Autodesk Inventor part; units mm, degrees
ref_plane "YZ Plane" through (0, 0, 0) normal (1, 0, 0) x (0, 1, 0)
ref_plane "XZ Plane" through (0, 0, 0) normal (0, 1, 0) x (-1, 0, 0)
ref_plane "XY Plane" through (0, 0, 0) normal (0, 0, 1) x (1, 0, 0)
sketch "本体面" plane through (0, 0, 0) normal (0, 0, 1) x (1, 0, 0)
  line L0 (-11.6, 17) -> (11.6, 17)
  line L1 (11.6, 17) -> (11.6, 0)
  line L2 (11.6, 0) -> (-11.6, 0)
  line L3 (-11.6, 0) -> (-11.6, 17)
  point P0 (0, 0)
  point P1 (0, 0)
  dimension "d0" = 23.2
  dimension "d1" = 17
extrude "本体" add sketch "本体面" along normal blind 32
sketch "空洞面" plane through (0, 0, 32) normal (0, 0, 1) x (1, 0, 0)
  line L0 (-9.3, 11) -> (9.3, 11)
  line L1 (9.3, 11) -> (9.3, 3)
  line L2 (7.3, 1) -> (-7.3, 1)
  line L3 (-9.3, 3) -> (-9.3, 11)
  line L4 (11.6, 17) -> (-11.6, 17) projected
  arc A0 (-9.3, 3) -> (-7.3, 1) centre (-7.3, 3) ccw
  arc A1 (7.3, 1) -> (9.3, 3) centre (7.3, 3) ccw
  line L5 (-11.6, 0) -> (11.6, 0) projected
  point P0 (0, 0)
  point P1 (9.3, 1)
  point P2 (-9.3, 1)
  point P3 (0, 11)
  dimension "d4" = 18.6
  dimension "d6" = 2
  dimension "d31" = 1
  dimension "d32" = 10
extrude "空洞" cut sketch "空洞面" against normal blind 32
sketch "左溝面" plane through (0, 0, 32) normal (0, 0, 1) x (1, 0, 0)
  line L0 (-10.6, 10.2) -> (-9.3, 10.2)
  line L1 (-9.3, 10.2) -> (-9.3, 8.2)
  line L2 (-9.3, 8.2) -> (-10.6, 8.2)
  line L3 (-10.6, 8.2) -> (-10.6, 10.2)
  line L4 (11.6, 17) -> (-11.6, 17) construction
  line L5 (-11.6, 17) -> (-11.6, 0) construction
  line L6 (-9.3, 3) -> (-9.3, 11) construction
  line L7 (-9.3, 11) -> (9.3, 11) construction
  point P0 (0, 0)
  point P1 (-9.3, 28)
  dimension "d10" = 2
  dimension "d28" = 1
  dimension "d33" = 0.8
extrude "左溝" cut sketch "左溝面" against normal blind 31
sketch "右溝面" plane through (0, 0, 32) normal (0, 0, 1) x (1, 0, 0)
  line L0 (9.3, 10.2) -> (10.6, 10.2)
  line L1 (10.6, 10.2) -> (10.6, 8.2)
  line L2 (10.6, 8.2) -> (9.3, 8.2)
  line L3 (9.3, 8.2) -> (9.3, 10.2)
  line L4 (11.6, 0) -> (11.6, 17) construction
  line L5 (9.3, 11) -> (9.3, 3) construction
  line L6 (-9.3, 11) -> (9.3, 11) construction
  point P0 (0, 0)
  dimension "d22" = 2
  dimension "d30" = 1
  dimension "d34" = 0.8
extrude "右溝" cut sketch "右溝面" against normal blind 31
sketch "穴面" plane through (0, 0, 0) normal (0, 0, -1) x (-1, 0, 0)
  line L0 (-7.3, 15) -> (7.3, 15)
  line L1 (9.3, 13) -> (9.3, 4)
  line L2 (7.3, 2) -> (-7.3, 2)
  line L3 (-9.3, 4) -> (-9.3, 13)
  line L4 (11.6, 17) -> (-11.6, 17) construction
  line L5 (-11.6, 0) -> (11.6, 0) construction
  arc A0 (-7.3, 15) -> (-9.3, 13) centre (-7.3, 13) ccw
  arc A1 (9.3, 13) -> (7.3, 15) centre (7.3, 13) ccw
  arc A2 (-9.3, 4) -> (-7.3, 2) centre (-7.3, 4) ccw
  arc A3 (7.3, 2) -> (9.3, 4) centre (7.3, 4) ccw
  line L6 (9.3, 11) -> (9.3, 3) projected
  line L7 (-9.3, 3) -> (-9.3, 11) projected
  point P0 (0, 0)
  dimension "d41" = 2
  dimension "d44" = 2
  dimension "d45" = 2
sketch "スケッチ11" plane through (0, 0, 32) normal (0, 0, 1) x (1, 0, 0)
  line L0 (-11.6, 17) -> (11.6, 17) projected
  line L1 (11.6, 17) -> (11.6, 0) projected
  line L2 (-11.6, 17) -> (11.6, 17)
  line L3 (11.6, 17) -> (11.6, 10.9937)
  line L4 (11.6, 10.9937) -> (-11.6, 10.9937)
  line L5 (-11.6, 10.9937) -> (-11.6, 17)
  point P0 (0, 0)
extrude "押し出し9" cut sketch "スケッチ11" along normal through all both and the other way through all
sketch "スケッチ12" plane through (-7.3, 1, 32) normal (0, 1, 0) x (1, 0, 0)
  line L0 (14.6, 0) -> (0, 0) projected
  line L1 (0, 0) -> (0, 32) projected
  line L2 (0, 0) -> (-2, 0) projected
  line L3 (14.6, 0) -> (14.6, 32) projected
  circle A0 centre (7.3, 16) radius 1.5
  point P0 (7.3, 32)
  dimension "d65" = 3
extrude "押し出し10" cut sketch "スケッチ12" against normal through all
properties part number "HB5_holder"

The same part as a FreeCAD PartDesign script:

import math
import FreeCAD as App
import Part
import Sketcher

V = App.Vector
Q = App.Units.Quantity

doc = App.newDocument("Part")
body = doc.addObject("PartDesign::Body", "Body")

sketch1 = doc.addObject("Sketcher::SketchObject", "Sketch")
body.addObject(sketch1)
sketch1.AttachmentSupport = (doc.XY_Plane, [""])
sketch1.MapMode = "FlatFace"
sketch1.addGeometry([
    Part.LineSegment(V(11.6, 17, 0), V(-11.6, 17, 0)),
    Part.LineSegment(V(-11.6, 17, 0), V(-11.6, 0, 0)),
    Part.LineSegment(V(-11.6, 0, 0), V(11.6, 0, 0)),
    Part.LineSegment(V(11.6, 0, 0), V(11.6, 17, 0)),
], False)
sketch1.addConstraint([
    Sketcher.Constraint("Coincident", 0, 2, 1, 1),
    Sketcher.Constraint("Coincident", 1, 2, 2, 1),
    Sketcher.Constraint("Coincident", 2, 2, 3, 1),
    Sketcher.Constraint("Coincident", 3, 2, 0, 1),
    Sketcher.Constraint("Horizontal", 0),
    Sketcher.Constraint("Vertical", 1),
    Sketcher.Constraint("Horizontal", 2),
    Sketcher.Constraint("Vertical", 3),
    Sketcher.Constraint("Symmetric", 1, 2, 2, 2, -1, 1),
    Sketcher.Constraint("DistanceY", 1, 2, 1, 1, Q("17 mm")),
    Sketcher.Constraint("DistanceX", 0, 2, 0, 1, Q("23.2 mm")),
])
pad1 = doc.addObject("PartDesign::Pad", "Pad")
body.addObject(pad1)
pad1.Profile = sketch1
pad1.Length = 32

sketch2 = doc.addObject("Sketcher::SketchObject", "Sketch001")
body.addObject(sketch2)
sketch2.AttachmentSupport = (doc.XY_Plane, [""])
sketch2.MapMode = "FlatFace"
sketch2.AttachmentOffset = App.Placement(V(0, 0, 32), App.Rotation())
sketch2.addGeometry([
    Part.LineSegment(V(9.3, 11, 0), V(-9.3, 11, 0)),
    Part.LineSegment(V(-9.3, 11, 0), V(-9.3, 3, 0)),
    Part.ArcOfCircle(Part.Circle(V(-7.3, 3, 0), V(0, 0, 1), 2), math.radians(180), math.radians(270)),
    Part.LineSegment(V(-7.3, 1, 0), V(7.3, 1, 0)),
    Part.ArcOfCircle(Part.Circle(V(7.3, 3, 0), V(0, 0, 1), 2), math.radians(-90), math.radians(0)),
    Part.LineSegment(V(9.3, 3, 0), V(9.3, 11, 0)),
], False)
sketch2.addConstraint([
    Sketcher.Constraint("Coincident", 0, 2, 1, 1),
    Sketcher.Constraint("Tangent", 1, 2, 2, 1),
    Sketcher.Constraint("Tangent", 2, 2, 3, 1),
    Sketcher.Constraint("Tangent", 3, 2, 4, 1),
    Sketcher.Constraint("Tangent", 4, 2, 5, 1),
    Sketcher.Constraint("Coincident", 5, 2, 0, 1),
    Sketcher.Constraint("Horizontal", 0),
    Sketcher.Constraint("Vertical", 1),
    Sketcher.Constraint("Horizontal", 3),
    Sketcher.Constraint("Vertical", 5),
    Sketcher.Constraint("Equal", 2, 4),
    Sketcher.Constraint("Radius", 2, Q("2 mm")),
    Sketcher.Constraint("DistanceX", 0, 2, 0, 1, Q("18.6 mm")),
    Sketcher.Constraint("DistanceY", -1, 1, 2, 2, Q("1 mm")),
    Sketcher.Constraint("DistanceY", 2, 2, 0, 2, Q("10 mm")),
    Sketcher.Constraint("DistanceX", 2, 3, -1, 1, Q("7.3 mm")),
])
pocket1 = doc.addObject("PartDesign::Pocket", "Pocket")
body.addObject(pocket1)
pocket1.Profile = sketch2
pocket1.Length = 32

sketch3 = doc.addObject("Sketcher::SketchObject", "Sketch002")
body.addObject(sketch3)
sketch3.AttachmentSupport = (doc.XY_Plane, [""])
sketch3.MapMode = "FlatFace"
sketch3.AttachmentOffset = App.Placement(V(0, 0, 32), App.Rotation())
sketch3.addGeometry([
    Part.LineSegment(V(-9.3, 10.2, 0), V(-10.6, 10.2, 0)),
    Part.LineSegment(V(-10.6, 10.2, 0), V(-10.6, 8.2, 0)),
    Part.LineSegment(V(-10.6, 8.2, 0), V(-9.3, 8.2, 0)),
    Part.LineSegment(V(-9.3, 8.2, 0), V(-9.3, 10.2, 0)),
], False)
sketch3.addConstraint([
    Sketcher.Constraint("Coincident", 0, 2, 1, 1),
    Sketcher.Constraint("Coincident", 1, 2, 2, 1),
    Sketcher.Constraint("Coincident", 2, 2, 3, 1),
    Sketcher.Constraint("Coincident", 3, 2, 0, 1),
    Sketcher.Constraint("Horizontal", 0),
    Sketcher.Constraint("Vertical", 1),
    Sketcher.Constraint("Horizontal", 2),
    Sketcher.Constraint("Vertical", 3),
    Sketcher.Constraint("DistanceY", 1, 2, 1, 1, Q("2 mm")),
    Sketcher.Constraint("DistanceX", 0, 2, 0, 1, Q("1.3 mm")),
    Sketcher.Constraint("DistanceX", 0, 2, -1, 1, Q("10.6 mm")),
    Sketcher.Constraint("DistanceY", -1, 1, 0, 2, Q("10.2 mm")),
])
pocket2 = doc.addObject("PartDesign::Pocket", "Pocket001")
body.addObject(pocket2)
pocket2.Profile = sketch3
pocket2.Length = 31

sketch4 = doc.addObject("Sketcher::SketchObject", "Sketch003")
body.addObject(sketch4)
sketch4.AttachmentSupport = (doc.XY_Plane, [""])
sketch4.MapMode = "FlatFace"
sketch4.AttachmentOffset = App.Placement(V(0, 0, 32), App.Rotation())
sketch4.addGeometry([
    Part.LineSegment(V(10.6, 10.2, 0), V(9.3, 10.2, 0)),
    Part.LineSegment(V(9.3, 10.2, 0), V(9.3, 8.2, 0)),
    Part.LineSegment(V(9.3, 8.2, 0), V(10.6, 8.2, 0)),
    Part.LineSegment(V(10.6, 8.2, 0), V(10.6, 10.2, 0)),
], False)
sketch4.addConstraint([
    Sketcher.Constraint("Coincident", 0, 2, 1, 1),
    Sketcher.Constraint("Coincident", 1, 2, 2, 1),
    Sketcher.Constraint("Coincident", 2, 2, 3, 1),
    Sketcher.Constraint("Coincident", 3, 2, 0, 1),
    Sketcher.Constraint("Horizontal", 0),
    Sketcher.Constraint("Vertical", 1),
    Sketcher.Constraint("Horizontal", 2),
    Sketcher.Constraint("Vertical", 3),
    Sketcher.Constraint("DistanceY", 1, 2, 1, 1, Q("2 mm")),
    Sketcher.Constraint("DistanceX", 0, 2, 0, 1, Q("1.3 mm")),
    Sketcher.Constraint("DistanceX", -1, 1, 0, 2, Q("9.3 mm")),
    Sketcher.Constraint("DistanceY", -1, 1, 0, 2, Q("10.2 mm")),
])
pocket3 = doc.addObject("PartDesign::Pocket", "Pocket002")
body.addObject(pocket3)
pocket3.Profile = sketch4
pocket3.Length = 31

sketch5 = doc.addObject("Sketcher::SketchObject", "Sketch004")
body.addObject(sketch5)
sketch5.AttachmentSupport = (doc.XY_Plane, [""])
sketch5.MapMode = "FlatFace"
sketch5.AttachmentOffset = App.Placement(V(0, 0, 32), App.Rotation())
sketch5.addGeometry([
    Part.LineSegment(V(11.6, 17, 0), V(-11.6, 17, 0)),
    Part.LineSegment(V(-11.6, 17, 0), V(-11.6, 10.9937, 0)),
    Part.LineSegment(V(-11.6, 10.9937, 0), V(11.6, 10.9937, 0)),
    Part.LineSegment(V(11.6, 10.9937, 0), V(11.6, 17, 0)),
], False)
sketch5.addConstraint([
    Sketcher.Constraint("Coincident", 0, 2, 1, 1),
    Sketcher.Constraint("Coincident", 1, 2, 2, 1),
    Sketcher.Constraint("Coincident", 2, 2, 3, 1),
    Sketcher.Constraint("Coincident", 3, 2, 0, 1),
    Sketcher.Constraint("Horizontal", 0),
    Sketcher.Constraint("Vertical", 1),
    Sketcher.Constraint("Horizontal", 2),
    Sketcher.Constraint("Vertical", 3),
    Sketcher.Constraint("DistanceX", 0, 2, 0, 1, Q("23.2 mm")),
    Sketcher.Constraint("DistanceY", -1, 1, 0, 2, Q("17 mm")),
    Sketcher.Constraint("DistanceX", 0, 2, -1, 1, Q("11.6 mm")),
    Sketcher.Constraint("DistanceY", 1, 2, 1, 1, Q("6.0063 mm")),
])
pocket4 = doc.addObject("PartDesign::Pocket", "Pocket003")
body.addObject(pocket4)
pocket4.Profile = sketch5
pocket4.Type = "ThroughAll"
pocket4.Midplane = True

sketch6 = doc.addObject("Sketcher::SketchObject", "Sketch005")
body.addObject(sketch6)
sketch6.AttachmentSupport = (doc.XZ_Plane, [""])
sketch6.MapMode = "FlatFace"
sketch6.AttachmentOffset = App.Placement(V(0, 0, -1), App.Rotation())
sketch6.addGeometry(Part.Circle(V(0, 16, 0), V(0, 0, 1), 1.5), False)
sketch6.addConstraint([
    Sketcher.Constraint("PointOnObject", 0, 3, -2),
    Sketcher.Constraint("Diameter", 0, Q("3 mm")),
    Sketcher.Constraint("DistanceY", -1, 1, 0, 3, Q("16 mm")),
])
pocket5 = doc.addObject("PartDesign::Pocket", "Pocket004")
body.addObject(pocket5)
pocket5.Profile = sketch6
pocket5.Type = "ThroughAll"
pocket5.Reversed = True

doc.recompute()
